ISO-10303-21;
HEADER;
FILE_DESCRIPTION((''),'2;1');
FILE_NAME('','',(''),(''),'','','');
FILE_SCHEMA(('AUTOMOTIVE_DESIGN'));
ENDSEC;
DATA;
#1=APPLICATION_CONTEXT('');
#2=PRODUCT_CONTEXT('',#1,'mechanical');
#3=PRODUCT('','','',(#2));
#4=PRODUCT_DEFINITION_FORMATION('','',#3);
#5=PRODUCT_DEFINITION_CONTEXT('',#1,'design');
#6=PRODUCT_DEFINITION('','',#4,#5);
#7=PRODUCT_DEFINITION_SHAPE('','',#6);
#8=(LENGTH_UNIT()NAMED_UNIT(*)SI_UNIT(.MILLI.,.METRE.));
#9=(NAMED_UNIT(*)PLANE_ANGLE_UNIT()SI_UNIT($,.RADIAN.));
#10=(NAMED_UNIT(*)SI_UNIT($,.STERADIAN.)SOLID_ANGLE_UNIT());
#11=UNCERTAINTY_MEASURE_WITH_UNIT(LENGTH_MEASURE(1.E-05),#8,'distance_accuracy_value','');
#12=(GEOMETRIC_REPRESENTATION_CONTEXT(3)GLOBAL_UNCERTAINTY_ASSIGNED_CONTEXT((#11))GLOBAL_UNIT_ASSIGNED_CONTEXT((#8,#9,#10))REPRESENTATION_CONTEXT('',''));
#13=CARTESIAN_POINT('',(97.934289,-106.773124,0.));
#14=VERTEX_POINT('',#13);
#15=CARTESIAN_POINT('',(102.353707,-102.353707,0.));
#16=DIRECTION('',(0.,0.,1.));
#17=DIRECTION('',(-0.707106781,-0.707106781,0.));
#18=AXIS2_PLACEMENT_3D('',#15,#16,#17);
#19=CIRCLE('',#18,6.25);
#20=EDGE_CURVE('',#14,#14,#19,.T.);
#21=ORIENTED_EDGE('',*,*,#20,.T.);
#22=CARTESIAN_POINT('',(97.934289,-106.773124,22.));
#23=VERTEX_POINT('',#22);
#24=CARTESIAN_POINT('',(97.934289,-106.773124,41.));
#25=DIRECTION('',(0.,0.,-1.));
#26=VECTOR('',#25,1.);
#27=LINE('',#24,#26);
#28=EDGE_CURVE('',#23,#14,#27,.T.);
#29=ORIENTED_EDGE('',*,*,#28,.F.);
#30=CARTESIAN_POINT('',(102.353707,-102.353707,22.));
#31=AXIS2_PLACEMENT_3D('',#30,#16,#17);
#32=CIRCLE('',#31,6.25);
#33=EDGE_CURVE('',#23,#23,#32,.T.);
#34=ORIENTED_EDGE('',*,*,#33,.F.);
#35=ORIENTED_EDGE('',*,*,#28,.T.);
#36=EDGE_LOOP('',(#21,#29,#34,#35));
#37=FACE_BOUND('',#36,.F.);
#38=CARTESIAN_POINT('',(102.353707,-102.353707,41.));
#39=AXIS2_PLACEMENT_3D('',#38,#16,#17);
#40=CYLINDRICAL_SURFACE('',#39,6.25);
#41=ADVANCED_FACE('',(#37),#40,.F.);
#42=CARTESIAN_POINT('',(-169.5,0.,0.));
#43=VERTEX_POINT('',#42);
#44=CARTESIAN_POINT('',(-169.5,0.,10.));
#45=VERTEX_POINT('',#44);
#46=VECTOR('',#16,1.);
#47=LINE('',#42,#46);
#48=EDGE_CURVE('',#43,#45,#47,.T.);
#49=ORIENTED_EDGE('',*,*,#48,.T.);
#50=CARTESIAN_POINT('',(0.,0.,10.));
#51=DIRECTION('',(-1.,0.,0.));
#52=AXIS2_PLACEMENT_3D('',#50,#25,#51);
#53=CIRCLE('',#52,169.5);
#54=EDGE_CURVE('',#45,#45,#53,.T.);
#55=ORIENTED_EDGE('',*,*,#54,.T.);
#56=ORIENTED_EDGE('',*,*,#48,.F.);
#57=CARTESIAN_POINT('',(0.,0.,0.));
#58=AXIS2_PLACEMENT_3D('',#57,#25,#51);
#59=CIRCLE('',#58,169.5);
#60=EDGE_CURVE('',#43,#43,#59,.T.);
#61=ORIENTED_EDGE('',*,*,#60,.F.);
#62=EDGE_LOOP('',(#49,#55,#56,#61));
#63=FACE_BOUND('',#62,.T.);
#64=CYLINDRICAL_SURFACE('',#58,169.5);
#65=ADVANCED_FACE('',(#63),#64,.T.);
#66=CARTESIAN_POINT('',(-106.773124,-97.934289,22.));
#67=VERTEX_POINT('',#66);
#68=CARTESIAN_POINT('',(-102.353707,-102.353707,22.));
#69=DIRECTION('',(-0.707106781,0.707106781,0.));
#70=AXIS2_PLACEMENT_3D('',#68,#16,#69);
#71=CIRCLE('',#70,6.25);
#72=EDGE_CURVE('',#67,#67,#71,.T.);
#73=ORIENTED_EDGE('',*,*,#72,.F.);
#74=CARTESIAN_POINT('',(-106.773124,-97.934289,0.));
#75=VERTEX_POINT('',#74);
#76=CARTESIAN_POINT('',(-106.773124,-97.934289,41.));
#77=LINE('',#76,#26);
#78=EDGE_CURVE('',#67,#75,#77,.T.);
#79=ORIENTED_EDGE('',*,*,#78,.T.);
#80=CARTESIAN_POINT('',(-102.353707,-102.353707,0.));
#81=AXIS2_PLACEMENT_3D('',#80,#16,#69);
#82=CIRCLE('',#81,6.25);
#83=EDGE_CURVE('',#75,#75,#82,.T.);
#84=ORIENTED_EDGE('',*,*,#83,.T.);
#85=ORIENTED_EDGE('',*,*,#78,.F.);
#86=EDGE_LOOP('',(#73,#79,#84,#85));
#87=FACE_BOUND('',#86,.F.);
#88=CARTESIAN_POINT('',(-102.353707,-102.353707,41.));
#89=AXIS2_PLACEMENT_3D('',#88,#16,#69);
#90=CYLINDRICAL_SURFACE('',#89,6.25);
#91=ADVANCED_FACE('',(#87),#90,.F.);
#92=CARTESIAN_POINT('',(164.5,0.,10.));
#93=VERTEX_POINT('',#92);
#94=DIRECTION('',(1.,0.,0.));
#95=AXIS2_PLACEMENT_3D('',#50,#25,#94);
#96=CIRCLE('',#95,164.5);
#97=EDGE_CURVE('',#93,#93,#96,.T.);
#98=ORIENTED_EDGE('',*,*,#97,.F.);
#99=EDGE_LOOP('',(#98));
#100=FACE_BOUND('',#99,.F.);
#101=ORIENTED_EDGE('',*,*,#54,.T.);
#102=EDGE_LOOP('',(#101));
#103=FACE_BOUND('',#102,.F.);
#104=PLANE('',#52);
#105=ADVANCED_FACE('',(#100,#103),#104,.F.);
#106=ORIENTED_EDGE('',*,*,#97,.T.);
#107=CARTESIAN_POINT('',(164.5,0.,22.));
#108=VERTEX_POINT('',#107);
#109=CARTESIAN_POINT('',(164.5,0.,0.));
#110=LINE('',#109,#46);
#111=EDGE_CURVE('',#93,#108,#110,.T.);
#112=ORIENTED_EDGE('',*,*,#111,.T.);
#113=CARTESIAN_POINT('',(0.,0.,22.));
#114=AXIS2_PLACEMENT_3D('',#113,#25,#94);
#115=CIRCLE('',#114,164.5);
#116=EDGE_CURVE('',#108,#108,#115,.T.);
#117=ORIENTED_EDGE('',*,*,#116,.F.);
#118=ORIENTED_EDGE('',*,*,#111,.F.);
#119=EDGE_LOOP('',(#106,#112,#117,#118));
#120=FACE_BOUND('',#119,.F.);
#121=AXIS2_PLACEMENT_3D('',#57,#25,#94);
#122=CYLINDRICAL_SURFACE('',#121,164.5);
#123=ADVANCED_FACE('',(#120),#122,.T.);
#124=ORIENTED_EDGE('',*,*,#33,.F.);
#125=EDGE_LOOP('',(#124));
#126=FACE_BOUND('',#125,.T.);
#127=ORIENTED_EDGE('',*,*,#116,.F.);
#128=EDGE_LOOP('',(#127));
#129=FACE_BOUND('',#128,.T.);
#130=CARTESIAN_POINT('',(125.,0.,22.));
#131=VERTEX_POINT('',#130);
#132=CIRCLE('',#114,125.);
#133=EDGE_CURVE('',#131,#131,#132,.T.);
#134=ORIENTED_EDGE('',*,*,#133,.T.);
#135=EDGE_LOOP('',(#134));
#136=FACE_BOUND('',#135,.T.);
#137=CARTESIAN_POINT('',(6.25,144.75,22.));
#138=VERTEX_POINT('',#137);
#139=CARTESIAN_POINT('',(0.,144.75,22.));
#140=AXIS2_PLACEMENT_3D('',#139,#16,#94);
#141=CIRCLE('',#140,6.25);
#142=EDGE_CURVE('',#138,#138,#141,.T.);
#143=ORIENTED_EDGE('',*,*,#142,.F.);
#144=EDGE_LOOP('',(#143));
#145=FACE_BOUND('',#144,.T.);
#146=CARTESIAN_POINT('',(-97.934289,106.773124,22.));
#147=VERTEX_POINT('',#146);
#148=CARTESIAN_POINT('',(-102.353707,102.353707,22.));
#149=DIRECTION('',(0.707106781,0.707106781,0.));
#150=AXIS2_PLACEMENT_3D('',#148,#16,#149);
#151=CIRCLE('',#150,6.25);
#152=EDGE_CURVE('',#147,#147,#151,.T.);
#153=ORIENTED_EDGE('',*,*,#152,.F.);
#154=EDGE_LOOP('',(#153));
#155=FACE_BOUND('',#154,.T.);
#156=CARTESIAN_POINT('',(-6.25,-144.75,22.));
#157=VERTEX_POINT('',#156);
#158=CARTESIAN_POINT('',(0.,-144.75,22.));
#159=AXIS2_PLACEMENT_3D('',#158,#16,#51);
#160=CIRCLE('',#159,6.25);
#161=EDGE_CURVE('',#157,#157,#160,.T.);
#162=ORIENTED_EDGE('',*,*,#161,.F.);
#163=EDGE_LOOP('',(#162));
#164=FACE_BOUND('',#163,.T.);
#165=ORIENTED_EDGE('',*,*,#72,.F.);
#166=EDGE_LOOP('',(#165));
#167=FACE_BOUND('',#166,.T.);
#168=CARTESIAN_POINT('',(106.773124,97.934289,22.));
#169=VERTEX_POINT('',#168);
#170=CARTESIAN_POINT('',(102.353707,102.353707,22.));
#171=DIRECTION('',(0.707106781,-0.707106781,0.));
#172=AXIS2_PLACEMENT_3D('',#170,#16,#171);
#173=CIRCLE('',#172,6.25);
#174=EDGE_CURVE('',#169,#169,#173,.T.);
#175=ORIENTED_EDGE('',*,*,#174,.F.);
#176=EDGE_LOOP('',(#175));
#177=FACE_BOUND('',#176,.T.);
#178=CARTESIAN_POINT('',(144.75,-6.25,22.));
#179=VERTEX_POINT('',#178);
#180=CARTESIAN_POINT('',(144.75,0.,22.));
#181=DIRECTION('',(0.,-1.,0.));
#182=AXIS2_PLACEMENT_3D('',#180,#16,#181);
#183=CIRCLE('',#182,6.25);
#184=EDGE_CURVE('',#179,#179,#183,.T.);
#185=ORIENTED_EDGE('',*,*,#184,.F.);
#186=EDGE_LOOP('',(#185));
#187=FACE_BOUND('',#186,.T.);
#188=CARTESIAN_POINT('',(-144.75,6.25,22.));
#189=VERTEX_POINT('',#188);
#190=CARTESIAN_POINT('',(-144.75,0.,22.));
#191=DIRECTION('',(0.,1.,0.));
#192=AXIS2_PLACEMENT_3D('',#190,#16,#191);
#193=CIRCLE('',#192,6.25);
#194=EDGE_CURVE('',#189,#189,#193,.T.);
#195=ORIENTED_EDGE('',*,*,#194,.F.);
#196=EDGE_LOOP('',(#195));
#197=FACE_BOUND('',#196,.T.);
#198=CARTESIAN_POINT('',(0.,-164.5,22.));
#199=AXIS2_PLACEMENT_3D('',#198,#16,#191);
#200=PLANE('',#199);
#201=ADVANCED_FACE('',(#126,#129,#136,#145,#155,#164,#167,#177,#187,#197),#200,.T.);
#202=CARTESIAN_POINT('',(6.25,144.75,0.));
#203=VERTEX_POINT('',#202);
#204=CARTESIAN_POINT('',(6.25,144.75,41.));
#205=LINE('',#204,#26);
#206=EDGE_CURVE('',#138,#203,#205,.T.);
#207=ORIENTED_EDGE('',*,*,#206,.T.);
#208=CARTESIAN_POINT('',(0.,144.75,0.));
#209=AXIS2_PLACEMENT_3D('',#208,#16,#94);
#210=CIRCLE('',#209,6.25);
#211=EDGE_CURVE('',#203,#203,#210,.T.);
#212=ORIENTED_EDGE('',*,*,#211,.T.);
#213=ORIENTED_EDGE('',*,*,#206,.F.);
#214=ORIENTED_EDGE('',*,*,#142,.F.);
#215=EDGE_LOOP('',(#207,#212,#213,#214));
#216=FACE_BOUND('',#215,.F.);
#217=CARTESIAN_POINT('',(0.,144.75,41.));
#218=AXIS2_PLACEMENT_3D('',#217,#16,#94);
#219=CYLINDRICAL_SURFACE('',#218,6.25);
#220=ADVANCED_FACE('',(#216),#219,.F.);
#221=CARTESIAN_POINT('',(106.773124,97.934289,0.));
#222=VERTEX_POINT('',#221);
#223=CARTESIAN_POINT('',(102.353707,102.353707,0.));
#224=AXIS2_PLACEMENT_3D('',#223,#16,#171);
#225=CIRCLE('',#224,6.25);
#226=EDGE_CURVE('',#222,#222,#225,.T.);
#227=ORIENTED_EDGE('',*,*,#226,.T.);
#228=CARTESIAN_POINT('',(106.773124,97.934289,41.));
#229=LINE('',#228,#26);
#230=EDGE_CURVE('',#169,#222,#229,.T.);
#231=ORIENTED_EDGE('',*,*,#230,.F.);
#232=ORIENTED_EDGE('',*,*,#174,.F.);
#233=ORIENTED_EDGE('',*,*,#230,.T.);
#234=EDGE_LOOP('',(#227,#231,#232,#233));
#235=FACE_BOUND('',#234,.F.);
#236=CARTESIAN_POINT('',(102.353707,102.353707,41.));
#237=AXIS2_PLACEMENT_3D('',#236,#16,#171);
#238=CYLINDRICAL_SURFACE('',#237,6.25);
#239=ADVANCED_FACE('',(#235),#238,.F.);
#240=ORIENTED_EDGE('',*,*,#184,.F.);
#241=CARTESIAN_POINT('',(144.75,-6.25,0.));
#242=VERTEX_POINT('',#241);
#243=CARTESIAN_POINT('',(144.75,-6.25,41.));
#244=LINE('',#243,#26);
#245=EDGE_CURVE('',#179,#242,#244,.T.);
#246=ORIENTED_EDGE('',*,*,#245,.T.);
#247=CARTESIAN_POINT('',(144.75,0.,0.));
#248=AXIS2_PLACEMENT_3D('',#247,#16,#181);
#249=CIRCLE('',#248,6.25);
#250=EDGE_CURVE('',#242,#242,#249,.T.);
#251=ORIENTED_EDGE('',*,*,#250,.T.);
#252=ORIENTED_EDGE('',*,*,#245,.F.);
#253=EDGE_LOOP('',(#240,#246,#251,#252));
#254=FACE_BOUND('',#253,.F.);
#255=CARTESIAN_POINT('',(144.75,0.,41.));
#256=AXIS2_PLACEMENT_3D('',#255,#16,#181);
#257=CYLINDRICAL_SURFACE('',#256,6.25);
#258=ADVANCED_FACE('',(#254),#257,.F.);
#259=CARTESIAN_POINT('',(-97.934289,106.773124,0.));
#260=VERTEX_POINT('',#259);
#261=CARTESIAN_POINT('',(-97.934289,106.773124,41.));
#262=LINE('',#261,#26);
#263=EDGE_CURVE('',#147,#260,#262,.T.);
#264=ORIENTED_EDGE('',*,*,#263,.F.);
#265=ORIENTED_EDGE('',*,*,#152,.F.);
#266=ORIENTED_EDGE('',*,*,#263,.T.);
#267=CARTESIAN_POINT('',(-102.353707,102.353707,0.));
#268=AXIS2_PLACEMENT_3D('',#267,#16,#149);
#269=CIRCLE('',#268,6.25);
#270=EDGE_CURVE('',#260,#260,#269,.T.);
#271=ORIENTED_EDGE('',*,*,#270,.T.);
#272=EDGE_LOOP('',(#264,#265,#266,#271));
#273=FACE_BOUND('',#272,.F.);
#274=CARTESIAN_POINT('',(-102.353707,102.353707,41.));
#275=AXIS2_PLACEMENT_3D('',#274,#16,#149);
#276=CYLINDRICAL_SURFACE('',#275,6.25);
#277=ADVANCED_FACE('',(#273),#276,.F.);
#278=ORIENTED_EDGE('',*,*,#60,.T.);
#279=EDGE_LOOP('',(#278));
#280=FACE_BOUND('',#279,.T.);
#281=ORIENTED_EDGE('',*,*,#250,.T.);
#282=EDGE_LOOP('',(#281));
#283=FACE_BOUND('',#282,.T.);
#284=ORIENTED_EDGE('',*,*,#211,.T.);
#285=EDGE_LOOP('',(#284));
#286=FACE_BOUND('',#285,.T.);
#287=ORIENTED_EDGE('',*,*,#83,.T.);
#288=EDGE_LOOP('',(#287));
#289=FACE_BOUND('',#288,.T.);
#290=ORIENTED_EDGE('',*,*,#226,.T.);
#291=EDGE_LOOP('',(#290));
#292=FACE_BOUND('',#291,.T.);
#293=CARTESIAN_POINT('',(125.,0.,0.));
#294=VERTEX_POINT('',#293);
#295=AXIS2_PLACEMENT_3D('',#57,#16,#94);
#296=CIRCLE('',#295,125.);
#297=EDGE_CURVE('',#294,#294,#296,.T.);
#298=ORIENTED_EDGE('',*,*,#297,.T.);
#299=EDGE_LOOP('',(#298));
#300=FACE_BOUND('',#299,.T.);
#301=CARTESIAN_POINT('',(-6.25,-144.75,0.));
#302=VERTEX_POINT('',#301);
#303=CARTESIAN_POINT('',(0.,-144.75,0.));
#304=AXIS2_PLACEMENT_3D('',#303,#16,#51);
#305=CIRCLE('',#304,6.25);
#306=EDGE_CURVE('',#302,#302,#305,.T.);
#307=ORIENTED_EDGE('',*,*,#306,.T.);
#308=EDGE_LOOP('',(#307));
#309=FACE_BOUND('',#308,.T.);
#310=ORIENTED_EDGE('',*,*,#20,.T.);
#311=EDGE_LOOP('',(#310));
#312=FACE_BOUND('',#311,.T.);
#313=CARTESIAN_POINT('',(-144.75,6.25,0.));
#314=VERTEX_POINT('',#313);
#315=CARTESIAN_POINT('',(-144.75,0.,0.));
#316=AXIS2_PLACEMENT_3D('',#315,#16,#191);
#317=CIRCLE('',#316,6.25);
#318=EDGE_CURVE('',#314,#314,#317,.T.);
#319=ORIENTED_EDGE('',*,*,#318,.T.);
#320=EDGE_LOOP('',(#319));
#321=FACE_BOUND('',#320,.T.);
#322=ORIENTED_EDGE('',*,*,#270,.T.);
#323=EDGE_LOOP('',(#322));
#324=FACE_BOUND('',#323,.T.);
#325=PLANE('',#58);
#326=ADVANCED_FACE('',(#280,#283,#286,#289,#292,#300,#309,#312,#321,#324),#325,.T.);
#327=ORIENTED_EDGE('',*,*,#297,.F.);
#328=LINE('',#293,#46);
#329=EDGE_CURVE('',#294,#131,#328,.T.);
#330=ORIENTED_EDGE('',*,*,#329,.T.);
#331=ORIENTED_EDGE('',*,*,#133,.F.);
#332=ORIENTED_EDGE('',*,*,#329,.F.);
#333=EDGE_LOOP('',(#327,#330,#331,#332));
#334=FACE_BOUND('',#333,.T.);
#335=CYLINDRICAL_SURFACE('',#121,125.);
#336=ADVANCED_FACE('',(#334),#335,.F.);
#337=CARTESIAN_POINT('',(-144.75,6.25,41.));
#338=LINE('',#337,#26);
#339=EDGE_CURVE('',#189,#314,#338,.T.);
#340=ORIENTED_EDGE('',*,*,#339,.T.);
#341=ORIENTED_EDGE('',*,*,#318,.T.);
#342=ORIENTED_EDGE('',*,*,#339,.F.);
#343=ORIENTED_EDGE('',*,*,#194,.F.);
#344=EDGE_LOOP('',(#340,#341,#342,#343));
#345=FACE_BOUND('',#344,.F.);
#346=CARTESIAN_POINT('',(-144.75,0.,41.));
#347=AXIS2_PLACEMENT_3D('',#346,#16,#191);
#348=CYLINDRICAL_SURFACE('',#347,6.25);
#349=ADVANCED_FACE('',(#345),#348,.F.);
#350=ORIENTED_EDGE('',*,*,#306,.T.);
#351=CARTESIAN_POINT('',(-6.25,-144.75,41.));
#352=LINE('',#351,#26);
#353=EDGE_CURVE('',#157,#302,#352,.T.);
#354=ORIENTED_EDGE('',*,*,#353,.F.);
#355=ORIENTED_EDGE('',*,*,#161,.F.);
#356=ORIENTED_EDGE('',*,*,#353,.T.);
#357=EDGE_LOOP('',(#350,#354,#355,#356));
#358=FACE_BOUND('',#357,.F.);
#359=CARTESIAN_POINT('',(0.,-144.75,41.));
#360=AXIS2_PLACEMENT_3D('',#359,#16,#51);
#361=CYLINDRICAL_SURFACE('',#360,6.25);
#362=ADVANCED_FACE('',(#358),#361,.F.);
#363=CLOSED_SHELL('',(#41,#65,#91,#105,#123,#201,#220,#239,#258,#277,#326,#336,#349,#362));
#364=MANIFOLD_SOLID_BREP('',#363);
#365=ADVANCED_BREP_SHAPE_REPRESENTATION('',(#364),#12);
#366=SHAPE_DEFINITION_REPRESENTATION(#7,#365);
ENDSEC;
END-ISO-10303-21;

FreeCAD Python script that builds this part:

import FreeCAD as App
import Part
import Sketcher
Q = App.Units.Quantity


def add_polygon(sketch, points):
    """Adds a closed chain of lines whose ends are joined by coincident constraints."""
    first, n = sketch.GeometryCount, len(points)
    for a, b in zip(points, points[1:] + points[:1]):
        sketch.addGeometry(Part.LineSegment(App.Vector(*a, 0), App.Vector(*b, 0)), False)
    for i in range(n):
        sketch.addConstraint(Sketcher.Constraint("Coincident", first + i, 2, first + (i + 1) % n, 1))

doc = App.newDocument("Part")
body = doc.addObject("PartDesign::Body", "Body")

# Sketch on XY plane
sketch1 = body.newObject("Sketcher::SketchObject", "Sketch")
sketch1.AttachmentSupport = (doc.getObject("XY_Plane"), [""])
sketch1.MapMode = "FlatFace"
sketch1.addGeometry(Part.Circle(App.Vector(0, 0, 0), App.Vector(0, 0, 1), 164), False)
sketch1.addGeometry(Part.Circle(App.Vector(0, 0, 0), App.Vector(0, 0, 1), 125), False)
sketch1.addConstraint(Sketcher.Constraint("Coincident", 0, 3, -1, 1))
sketch1.addConstraint(Sketcher.Constraint("Coincident", 1, 3, -1, 1))
sketch1.addConstraint(Sketcher.Constraint("Diameter", 1, Q("250 mm")))
sketch1.addConstraint(Sketcher.Constraint("Diameter", 0, Q("329 mm")))
pad1 = body.newObject("PartDesign::Pad", "Pad")
pad1.Profile = sketch1
pad1.Length = 41

# Sketch on XY plane
sketch2 = body.newObject("Sketcher::SketchObject", "Sketch001")
sketch2.AttachmentSupport = (doc.getObject("XY_Plane"), [""])
sketch2.MapMode = "FlatFace"
sketch2.AttachmentOffset = App.Placement(App.Vector(0, 0, 41), App.Rotation())
sketch2.addGeometry(Part.Circle(App.Vector(0, 145, 0), App.Vector(0, 0, 1), 6), False)
sketch2.addConstraint(Sketcher.Constraint("PointOnObject", 0, 3, -2))
sketch2.addConstraint(Sketcher.Constraint("Diameter", 0, Q("12.5 mm")))
sketch2.addConstraint(Sketcher.Constraint("DistanceY", -1, 1, 0, 3, Q("144.75 mm")))
pocket1 = body.newObject("PartDesign::Pocket", "Pocket")
pocket1.Profile = sketch2
pocket1.Type = "ThroughAll"

# Sketch on XY plane
sketch3 = body.newObject("Sketcher::SketchObject", "Sketch002")
sketch3.AttachmentSupport = (doc.getObject("XY_Plane"), [""])
sketch3.MapMode = "FlatFace"
sketch3.AttachmentOffset = App.Placement(App.Vector(0, 0, 41), App.Rotation())
sketch3.addGeometry(Part.Circle(App.Vector(0, 145, 0), App.Vector(0, 0, 1), 14), False)
sketch3.addGeometry(Part.Circle(App.Vector(0, 145, 0), App.Vector(0, 0, 1), 6), False)
sketch3.addConstraint(Sketcher.Constraint("Coincident", 1, 3, 0, 3))
sketch3.addConstraint(Sketcher.Constraint("PointOnObject", 0, 3, -2))
sketch3.addConstraint(Sketcher.Constraint("Diameter", 0, Q("27.5 mm")))
sketch3.addConstraint(Sketcher.Constraint("Diameter", 1, Q("12.5 mm")))
sketch3.addConstraint(Sketcher.Constraint("DistanceY", -1, 1, 0, 3, Q("144.75 mm")))
pocket2 = body.newObject("PartDesign::Pocket", "Pocket001")
pocket2.Profile = sketch3
pocket2.Length = 11
doc.recompute()

polarpattern = body.newObject("PartDesign::PolarPattern", "PolarPattern")
polarpattern.Originals = [pocket1, pocket2]
polarpattern.Axis = (doc.getObject("Z_Axis"), [""])
polarpattern.Angle = 360
polarpattern.Occurrences = 8
body.Tip = polarpattern

# Sketch on XY plane
sketch4 = body.newObject("Sketcher::SketchObject", "Sketch003")
sketch4.AttachmentSupport = (doc.getObject("XY_Plane"), [""])
sketch4.MapMode = "FlatFace"
sketch4.addGeometry(Part.Circle(App.Vector(0, 0, 0), App.Vector(0, 0, 1), 170), False)
sketch4.addGeometry(Part.Circle(App.Vector(0, 0, 0), App.Vector(0, 0, 1), 164), False)
sketch4.addConstraint(Sketcher.Constraint("Coincident", 0, 3, -1, 1))
sketch4.addConstraint(Sketcher.Constraint("Coincident", 1, 3, -1, 1))
sketch4.addConstraint(Sketcher.Constraint("Diameter", 0, Q("339 mm")))
sketch4.addConstraint(Sketcher.Constraint("Diameter", 1, Q("329 mm")))
pad2 = body.newObject("PartDesign::Pad", "Pad001")
pad2.Profile = sketch4
pad2.Length = 10

# Sketch on YZ plane
sketch5 = body.newObject("Sketcher::SketchObject", "Sketch004")
sketch5.AttachmentSupport = (doc.getObject("YZ_Plane"), [""])
sketch5.MapMode = "FlatFace"
add_polygon(sketch5, [(-164, 22), (164, 22), (164, 41), (-164, 41)])  # lines 0-3
sketch5.addConstraint(Sketcher.Constraint("Horizontal", 0))
sketch5.addConstraint(Sketcher.Constraint("Vertical", 1))
sketch5.addConstraint(Sketcher.Constraint("Horizontal", 2))
sketch5.addConstraint(Sketcher.Constraint("Vertical", 3))
sketch5.addConstraint(Sketcher.Constraint("DistanceY", 1, 1, 1, 2, Q("19 mm")))
sketch5.addConstraint(Sketcher.Constraint("DistanceY", -1, 1, 1, 2, Q("41 mm")))
sketch5.addConstraint(Sketcher.Constraint("DistanceX", 0, 1, 0, 2, Q("329 mm")))
sketch5.addConstraint(Sketcher.Constraint("DistanceX", -1, 1, 0, 2, Q("164.5 mm")))
pocket3 = body.newObject("PartDesign::Pocket", "Pocket002")
pocket3.Profile = sketch5
pocket3.Type = "ThroughAll"
pocket3.Midplane = True

doc.recompute()
